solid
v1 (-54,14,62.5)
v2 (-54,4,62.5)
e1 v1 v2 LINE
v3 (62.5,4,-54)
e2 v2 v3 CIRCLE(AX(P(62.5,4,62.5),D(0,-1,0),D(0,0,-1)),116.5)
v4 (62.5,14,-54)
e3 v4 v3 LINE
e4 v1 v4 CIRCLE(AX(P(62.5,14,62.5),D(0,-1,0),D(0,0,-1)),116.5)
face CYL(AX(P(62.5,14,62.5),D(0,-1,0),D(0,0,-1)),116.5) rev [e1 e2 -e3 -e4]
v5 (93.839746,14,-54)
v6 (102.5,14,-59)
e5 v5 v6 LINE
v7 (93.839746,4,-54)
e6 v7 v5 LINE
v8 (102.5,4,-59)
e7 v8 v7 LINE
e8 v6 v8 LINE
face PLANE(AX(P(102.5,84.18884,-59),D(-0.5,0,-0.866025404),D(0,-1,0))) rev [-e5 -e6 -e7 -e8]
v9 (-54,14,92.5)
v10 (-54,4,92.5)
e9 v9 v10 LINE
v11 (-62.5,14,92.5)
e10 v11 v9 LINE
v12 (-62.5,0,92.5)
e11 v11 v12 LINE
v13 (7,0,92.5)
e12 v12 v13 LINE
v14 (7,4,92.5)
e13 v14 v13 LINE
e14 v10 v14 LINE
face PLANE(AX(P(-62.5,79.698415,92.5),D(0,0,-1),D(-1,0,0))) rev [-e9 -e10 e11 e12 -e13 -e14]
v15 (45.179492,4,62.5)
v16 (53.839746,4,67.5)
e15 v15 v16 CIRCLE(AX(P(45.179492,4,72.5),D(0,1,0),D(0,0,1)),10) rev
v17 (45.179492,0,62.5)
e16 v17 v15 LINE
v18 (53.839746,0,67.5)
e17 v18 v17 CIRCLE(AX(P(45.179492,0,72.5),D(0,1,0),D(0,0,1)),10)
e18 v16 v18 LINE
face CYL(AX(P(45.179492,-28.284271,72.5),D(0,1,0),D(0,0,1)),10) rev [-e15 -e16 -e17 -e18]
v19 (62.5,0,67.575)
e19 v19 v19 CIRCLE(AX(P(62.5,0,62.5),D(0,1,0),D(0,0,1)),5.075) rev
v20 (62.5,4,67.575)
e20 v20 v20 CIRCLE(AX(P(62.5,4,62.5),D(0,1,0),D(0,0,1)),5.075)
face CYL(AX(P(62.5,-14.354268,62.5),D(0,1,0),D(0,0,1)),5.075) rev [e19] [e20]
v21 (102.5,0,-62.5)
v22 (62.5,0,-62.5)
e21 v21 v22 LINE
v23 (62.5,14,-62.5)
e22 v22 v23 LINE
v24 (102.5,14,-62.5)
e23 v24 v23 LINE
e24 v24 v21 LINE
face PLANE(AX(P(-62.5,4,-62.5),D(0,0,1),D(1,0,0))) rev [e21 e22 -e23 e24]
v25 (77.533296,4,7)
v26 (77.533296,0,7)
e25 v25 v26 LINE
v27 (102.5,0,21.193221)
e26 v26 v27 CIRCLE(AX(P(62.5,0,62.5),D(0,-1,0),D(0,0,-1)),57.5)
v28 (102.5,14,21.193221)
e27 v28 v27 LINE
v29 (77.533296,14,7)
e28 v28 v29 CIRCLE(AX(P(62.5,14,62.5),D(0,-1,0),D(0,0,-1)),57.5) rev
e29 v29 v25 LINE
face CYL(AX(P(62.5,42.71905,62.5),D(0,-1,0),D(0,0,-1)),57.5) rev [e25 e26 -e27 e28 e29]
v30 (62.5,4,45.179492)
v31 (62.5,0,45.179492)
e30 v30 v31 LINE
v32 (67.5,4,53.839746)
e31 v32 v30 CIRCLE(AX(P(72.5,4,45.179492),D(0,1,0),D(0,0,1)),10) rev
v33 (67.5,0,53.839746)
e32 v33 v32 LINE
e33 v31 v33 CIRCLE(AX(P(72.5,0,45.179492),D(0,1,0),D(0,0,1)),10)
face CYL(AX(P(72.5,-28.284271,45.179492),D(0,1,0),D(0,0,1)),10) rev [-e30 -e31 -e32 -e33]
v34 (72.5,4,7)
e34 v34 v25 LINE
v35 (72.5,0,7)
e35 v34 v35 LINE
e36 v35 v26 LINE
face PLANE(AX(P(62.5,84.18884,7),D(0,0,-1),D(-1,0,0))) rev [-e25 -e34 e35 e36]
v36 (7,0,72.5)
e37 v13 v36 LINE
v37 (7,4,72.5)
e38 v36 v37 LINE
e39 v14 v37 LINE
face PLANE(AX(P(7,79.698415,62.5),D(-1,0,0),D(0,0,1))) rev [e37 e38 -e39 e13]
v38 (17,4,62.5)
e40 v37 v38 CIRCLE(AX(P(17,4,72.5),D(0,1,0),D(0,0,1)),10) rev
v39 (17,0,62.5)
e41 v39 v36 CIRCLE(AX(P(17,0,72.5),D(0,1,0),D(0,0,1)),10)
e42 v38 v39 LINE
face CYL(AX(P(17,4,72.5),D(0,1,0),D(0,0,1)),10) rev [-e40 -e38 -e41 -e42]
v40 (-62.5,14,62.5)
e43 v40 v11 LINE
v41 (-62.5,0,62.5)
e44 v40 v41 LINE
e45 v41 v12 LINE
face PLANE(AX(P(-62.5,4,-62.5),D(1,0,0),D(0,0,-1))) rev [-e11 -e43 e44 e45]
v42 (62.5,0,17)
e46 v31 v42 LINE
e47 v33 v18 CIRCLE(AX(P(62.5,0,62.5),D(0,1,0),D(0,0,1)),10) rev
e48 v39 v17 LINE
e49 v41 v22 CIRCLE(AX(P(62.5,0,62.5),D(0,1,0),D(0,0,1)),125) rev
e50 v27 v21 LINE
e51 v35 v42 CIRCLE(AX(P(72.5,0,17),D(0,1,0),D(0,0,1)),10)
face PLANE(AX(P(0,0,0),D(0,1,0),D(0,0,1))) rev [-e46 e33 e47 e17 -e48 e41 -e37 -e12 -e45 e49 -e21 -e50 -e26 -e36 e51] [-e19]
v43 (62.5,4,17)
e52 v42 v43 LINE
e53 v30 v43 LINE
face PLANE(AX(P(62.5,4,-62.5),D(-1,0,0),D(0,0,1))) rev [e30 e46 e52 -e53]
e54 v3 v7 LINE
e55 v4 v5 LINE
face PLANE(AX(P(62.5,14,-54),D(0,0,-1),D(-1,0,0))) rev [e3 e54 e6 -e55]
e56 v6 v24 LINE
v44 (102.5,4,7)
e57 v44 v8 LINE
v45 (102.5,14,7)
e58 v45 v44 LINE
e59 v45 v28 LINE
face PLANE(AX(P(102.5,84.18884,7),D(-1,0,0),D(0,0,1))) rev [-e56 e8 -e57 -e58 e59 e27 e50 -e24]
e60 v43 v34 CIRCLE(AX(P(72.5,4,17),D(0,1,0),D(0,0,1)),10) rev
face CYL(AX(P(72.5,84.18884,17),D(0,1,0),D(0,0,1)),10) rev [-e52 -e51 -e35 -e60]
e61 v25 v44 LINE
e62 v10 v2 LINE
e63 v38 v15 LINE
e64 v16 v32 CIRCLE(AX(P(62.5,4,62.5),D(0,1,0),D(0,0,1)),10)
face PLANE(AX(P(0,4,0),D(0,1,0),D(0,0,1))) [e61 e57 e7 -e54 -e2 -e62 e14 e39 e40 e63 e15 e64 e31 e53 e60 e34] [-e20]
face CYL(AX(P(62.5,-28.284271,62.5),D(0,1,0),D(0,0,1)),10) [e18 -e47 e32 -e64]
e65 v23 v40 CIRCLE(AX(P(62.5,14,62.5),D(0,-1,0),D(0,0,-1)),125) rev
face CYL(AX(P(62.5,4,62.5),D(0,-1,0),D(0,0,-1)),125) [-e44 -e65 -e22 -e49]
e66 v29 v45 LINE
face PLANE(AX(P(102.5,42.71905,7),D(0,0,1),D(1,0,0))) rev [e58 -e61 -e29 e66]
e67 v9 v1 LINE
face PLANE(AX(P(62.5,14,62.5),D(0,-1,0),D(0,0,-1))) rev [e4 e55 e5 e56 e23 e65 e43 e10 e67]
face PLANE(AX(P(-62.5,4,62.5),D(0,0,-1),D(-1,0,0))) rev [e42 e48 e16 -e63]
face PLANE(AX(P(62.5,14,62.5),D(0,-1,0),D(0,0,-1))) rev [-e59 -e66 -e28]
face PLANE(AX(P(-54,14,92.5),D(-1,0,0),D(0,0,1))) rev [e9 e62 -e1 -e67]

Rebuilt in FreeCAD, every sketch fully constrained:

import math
import FreeCAD as App
import Part
import Sketcher

V = App.Vector


def edges_at(feature, points):
    """Names of the edges that pass closest to the given points."""
    edges = feature.Shape.Edges
    near = lambda p: min(range(len(edges)), key=lambda i: edges[i].distToShape(Part.Vertex(*p))[0])
    return sorted({f"Edge{near(p) + 1}" for p in points})


def add_polygon(sketch, points):
    """Adds a closed chain of lines whose ends are joined by coincident constraints."""
    first, n = sketch.GeometryCount, len(points)
    for a, b in zip(points, points[1:] + points[:1]):
        sketch.addGeometry(Part.LineSegment(App.Vector(*a, 0), App.Vector(*b, 0)), False)
    for i in range(n):
        sketch.addConstraint(Sketcher.Constraint("Coincident", first + i, 2, first + (i + 1) % n, 1))

doc = App.newDocument("Part")
body = doc.addObject("PartDesign::Body", "Body")

# Sketch on XZ plane
sketch1 = body.newObject("Sketcher::SketchObject", "Sketch")
sketch1.AttachmentSupport = (doc.getObject("XZ_Plane"), [""])
sketch1.MapMode = "FlatFace"
add_polygon(sketch1, [(-62, -62), (-62, 62), (62, 62), (62, -62)])  # lines 0-3
sketch1.addConstraint([
    Sketcher.Constraint("Vertical", 0),
    Sketcher.Constraint("Horizontal", 1),
    Sketcher.Constraint("Vertical", 2),
    Sketcher.Constraint("Horizontal", 3),
    Sketcher.Constraint("Symmetric", 0, 2, 2, 2, -1, 1),
    Sketcher.Constraint("Equal", 3, 0),
    Sketcher.Constraint("DistanceX", 1, 1, 1, 2, 125.0),
])
pad1 = body.newObject("PartDesign::Pad", "Pad")
pad1.Profile = sketch1
pad1.Length = 4
pad1.Reversed = True

# Sketch on XZ plane
sketch2 = body.newObject("Sketcher::SketchObject", "Sketch001")
sketch2.AttachmentSupport = (doc.getObject("XZ_Plane"), [""])
sketch2.MapMode = "FlatFace"
add_polygon(sketch2, [(62, -62), (62, 7), (102, 7), (102, -62)])  # lines 0-3
sketch2.addConstraint([
    Sketcher.Constraint("Vertical", 0),
    Sketcher.Constraint("Horizontal", 1),
    Sketcher.Constraint("Vertical", 2),
    Sketcher.Constraint("Horizontal", 3),
    Sketcher.Constraint("DistanceX", 1, 1, 1, 2, 40.0),
    Sketcher.Constraint("DistanceY", 0, 1, 0, 2, 69.5),
    Sketcher.Constraint("DistanceY", -1, 1, 0, 2, 7.0),
    Sketcher.Constraint("DistanceX", -1, 1, 0, 2, 62.5),
])
pad2 = body.newObject("PartDesign::Pad", "Pad001")
pad2.Profile = sketch2
pad2.Length = 4
pad2.Reversed = True

# Sketch on XZ plane
sketch3 = body.newObject("Sketcher::SketchObject", "Sketch002")
sketch3.AttachmentSupport = (doc.getObject("XZ_Plane"), [""])
sketch3.MapMode = "FlatFace"
add_polygon(sketch3, [(-62, 62), (-62, 92), (7, 92), (7, 62)])  # lines 0-3
sketch3.addConstraint([
    Sketcher.Constraint("Vertical", 0),
    Sketcher.Constraint("Horizontal", 1),
    Sketcher.Constraint("Vertical", 2),
    Sketcher.Constraint("Horizontal", 3),
    Sketcher.Constraint("DistanceY", 0, 1, 0, 2, 30.0),
    Sketcher.Constraint("DistanceX", 1, 1, 1, 2, 69.5),
    Sketcher.Constraint("DistanceX", -1, 1, 1, 2, 7.0),
    Sketcher.Constraint("DistanceY", -1, 1, 0, 2, 92.5),
])
pad3 = body.newObject("PartDesign::Pad", "Pad002")
pad3.Profile = sketch3
pad3.Length = 4
pad3.Reversed = True

# Sketch on XZ plane
sketch4 = body.newObject("Sketcher::SketchObject", "Sketch003")
sketch4.AttachmentSupport = (doc.getObject("XZ_Plane"), [""])
sketch4.MapMode = "FlatFace"
sketch4.AttachmentOffset = App.Placement(V(0, 0, -4), App.Rotation())
sketch4.addGeometry([
    Part.LineSegment(V(-62, -62, 0), V(-62, 92, 0)),  # 0
    Part.LineSegment(V(-62, 92, 0), V(-54, 92, 0)),  # 1
    Part.LineSegment(V(-54, 92, 0), V(-54, 62, 0)),  # 2
    Part.ArcOfCircle(Part.Circle(V(63, 63, 0), V(0, 0, 1), 117), math.radians(-180), math.radians(-90)),  # 3
    Part.LineSegment(V(62, -54, 0), V(102, -54, 0)),  # 4
    Part.LineSegment(V(102, -54, 0), V(102, -62, 0)),  # 5
    Part.LineSegment(V(102, -62, 0), V(-62, -62, 0)),  # 6
], False)
sketch4.addConstraint([
    Sketcher.Constraint("Coincident", 0, 2, 1, 1),
    Sketcher.Constraint("Coincident", 1, 2, 2, 1),
    Sketcher.Constraint("Tangent", 2, 2, 3, 1),
    Sketcher.Constraint("Tangent", 3, 2, 4, 1),
    Sketcher.Constraint("Coincident", 4, 2, 5, 1),
    Sketcher.Constraint("Coincident", 5, 2, 6, 1),
    Sketcher.Constraint("Coincident", 6, 2, 0, 1),
    Sketcher.Constraint("Vertical", 0),
    Sketcher.Constraint("Horizontal", 1),
    Sketcher.Constraint("Vertical", 2),
    Sketcher.Constraint("Horizontal", 4),
    Sketcher.Constraint("Vertical", 5),
    Sketcher.Constraint("Horizontal", 6),
    Sketcher.Constraint("Equal", 1, 5),
    Sketcher.Constraint("Radius", 3, 116.5),
    Sketcher.Constraint("DistanceX", 4, 1, 4, 2, 40.0),
    Sketcher.Constraint("DistanceX", 6, 2, 6, 1, 165.0),
    Sketcher.Constraint("DistanceY", 0, 1, 0, 2, 155.0),
    Sketcher.Constraint("DistanceX", 1, 2, -1, 1, 54.0),
    Sketcher.Constraint("DistanceY", 3, 2, -1, 1, 54.0),
])
pad4 = body.newObject("PartDesign::Pad", "Pad003")
pad4.Profile = sketch4
pad4.Length = 10
pad4.Reversed = True

# Sketch on XZ plane
sketch5 = body.newObject("Sketcher::SketchObject", "Sketch004")
sketch5.AttachmentSupport = (doc.getObject("XZ_Plane"), [""])
sketch5.MapMode = "FlatFace"
sketch5.AttachmentOffset = App.Placement(V(0, 0, -4), App.Rotation())
sketch5.addGeometry(Part.Circle(V(62, 62, 0), V(0, 0, 1), 10), False)
sketch5.addConstraint([
    Sketcher.Constraint("Diameter", 0, 20.0),
    Sketcher.Constraint("DistanceX", -1, 1, 0, 3, 62.5),
    Sketcher.Constraint("DistanceY", -1, 1, 0, 3, 62.5),
])
pad5 = body.newObject("PartDesign::Pad", "Pad004")
pad5.Profile = sketch5
pad5.Length = 4

# Sketch on XZ plane
sketch6 = body.newObject("Sketcher::SketchObject", "Sketch005")
sketch6.AttachmentSupport = (doc.getObject("XZ_Plane"), [""])
sketch6.MapMode = "FlatFace"
sketch6.AttachmentOffset = App.Placement(V(0, 0, -4), App.Rotation())
sketch6.addGeometry(Part.Circle(V(62, 62, 0), V(0, 0, 1), 5), False)
sketch6.addConstraint([
    Sketcher.Constraint("Diameter", 0, 10.15),
    Sketcher.Constraint("DistanceX", -1, 1, 0, 3, 62.5),
    Sketcher.Constraint("DistanceY", -1, 1, 0, 3, 62.5),
])
pocket1 = body.newObject("PartDesign::Pocket", "Pocket")
pocket1.Profile = sketch6
pocket1.Length = 4
pocket1.Reversed = True
doc.recompute()

fillet = body.newObject("PartDesign::Fillet", "Fillet")
fillet.Base = (pocket1, edges_at(pocket1, [(-62.5, 7, -62.5)]))
fillet.Radius = 125
doc.recompute()

chamfer = body.newObject("PartDesign::Chamfer", "Chamfer")
chamfer.Base = (fillet, edges_at(fillet, [(102.5, 9, -54)]))
chamfer.ChamferType = "Two distances"
chamfer.Size = 5
chamfer.Size2 = 8.660254

# Sketch on XZ plane
sketch7 = body.newObject("Sketcher::SketchObject", "Sketch006")
sketch7.AttachmentSupport = (doc.getObject("XZ_Plane"), [""])
sketch7.MapMode = "FlatFace"
sketch7.addGeometry([
    Part.LineSegment(V(102, 21, 0), V(102, 7, 0)),
    Part.LineSegment(V(102, 7, 0), V(78, 7, 0)),
    Part.ArcOfCircle(Part.Circle(V(63, 62, 0), V(0, 0, 1), 57), math.radians(-75), math.radians(-46)),
], False)
sketch7.addConstraint([
    Sketcher.Constraint("Coincident", 0, 2, 1, 1),
    Sketcher.Constraint("Coincident", 1, 2, 2, 1),
    Sketcher.Constraint("Coincident", 2, 2, 0, 1),
    Sketcher.Constraint("Vertical", 0),
    Sketcher.Constraint("Horizontal", 1),
    Sketcher.Constraint("Radius", 2, 57.5),
    Sketcher.Constraint("DistanceY", -1, 1, 0, 2, 7.0),
    Sketcher.Constraint("DistanceX", 2, 3, 0, 2, 40.0),
    Sketcher.Constraint("DistanceX", -1, 1, 2, 3, 62.5),
    Sketcher.Constraint("DistanceY", -1, 1, 2, 3, 62.5),
])
pad6 = body.newObject("PartDesign::Pad", "Pad005")
pad6.Profile = sketch7
pad6.Length = 14
pad6.Reversed = True
doc.recompute()

fillet2 = body.newObject("PartDesign::Fillet", "Fillet001")
fillet2.Base = (pad6, edges_at(pad6, [
    (62.5, 2, 7),
    (7, 2, 62.5),
    (62.5, 2, 52.5),
    (52.5, 2, 62.5),
]))
fillet2.Radius = 10

doc.recompute()
